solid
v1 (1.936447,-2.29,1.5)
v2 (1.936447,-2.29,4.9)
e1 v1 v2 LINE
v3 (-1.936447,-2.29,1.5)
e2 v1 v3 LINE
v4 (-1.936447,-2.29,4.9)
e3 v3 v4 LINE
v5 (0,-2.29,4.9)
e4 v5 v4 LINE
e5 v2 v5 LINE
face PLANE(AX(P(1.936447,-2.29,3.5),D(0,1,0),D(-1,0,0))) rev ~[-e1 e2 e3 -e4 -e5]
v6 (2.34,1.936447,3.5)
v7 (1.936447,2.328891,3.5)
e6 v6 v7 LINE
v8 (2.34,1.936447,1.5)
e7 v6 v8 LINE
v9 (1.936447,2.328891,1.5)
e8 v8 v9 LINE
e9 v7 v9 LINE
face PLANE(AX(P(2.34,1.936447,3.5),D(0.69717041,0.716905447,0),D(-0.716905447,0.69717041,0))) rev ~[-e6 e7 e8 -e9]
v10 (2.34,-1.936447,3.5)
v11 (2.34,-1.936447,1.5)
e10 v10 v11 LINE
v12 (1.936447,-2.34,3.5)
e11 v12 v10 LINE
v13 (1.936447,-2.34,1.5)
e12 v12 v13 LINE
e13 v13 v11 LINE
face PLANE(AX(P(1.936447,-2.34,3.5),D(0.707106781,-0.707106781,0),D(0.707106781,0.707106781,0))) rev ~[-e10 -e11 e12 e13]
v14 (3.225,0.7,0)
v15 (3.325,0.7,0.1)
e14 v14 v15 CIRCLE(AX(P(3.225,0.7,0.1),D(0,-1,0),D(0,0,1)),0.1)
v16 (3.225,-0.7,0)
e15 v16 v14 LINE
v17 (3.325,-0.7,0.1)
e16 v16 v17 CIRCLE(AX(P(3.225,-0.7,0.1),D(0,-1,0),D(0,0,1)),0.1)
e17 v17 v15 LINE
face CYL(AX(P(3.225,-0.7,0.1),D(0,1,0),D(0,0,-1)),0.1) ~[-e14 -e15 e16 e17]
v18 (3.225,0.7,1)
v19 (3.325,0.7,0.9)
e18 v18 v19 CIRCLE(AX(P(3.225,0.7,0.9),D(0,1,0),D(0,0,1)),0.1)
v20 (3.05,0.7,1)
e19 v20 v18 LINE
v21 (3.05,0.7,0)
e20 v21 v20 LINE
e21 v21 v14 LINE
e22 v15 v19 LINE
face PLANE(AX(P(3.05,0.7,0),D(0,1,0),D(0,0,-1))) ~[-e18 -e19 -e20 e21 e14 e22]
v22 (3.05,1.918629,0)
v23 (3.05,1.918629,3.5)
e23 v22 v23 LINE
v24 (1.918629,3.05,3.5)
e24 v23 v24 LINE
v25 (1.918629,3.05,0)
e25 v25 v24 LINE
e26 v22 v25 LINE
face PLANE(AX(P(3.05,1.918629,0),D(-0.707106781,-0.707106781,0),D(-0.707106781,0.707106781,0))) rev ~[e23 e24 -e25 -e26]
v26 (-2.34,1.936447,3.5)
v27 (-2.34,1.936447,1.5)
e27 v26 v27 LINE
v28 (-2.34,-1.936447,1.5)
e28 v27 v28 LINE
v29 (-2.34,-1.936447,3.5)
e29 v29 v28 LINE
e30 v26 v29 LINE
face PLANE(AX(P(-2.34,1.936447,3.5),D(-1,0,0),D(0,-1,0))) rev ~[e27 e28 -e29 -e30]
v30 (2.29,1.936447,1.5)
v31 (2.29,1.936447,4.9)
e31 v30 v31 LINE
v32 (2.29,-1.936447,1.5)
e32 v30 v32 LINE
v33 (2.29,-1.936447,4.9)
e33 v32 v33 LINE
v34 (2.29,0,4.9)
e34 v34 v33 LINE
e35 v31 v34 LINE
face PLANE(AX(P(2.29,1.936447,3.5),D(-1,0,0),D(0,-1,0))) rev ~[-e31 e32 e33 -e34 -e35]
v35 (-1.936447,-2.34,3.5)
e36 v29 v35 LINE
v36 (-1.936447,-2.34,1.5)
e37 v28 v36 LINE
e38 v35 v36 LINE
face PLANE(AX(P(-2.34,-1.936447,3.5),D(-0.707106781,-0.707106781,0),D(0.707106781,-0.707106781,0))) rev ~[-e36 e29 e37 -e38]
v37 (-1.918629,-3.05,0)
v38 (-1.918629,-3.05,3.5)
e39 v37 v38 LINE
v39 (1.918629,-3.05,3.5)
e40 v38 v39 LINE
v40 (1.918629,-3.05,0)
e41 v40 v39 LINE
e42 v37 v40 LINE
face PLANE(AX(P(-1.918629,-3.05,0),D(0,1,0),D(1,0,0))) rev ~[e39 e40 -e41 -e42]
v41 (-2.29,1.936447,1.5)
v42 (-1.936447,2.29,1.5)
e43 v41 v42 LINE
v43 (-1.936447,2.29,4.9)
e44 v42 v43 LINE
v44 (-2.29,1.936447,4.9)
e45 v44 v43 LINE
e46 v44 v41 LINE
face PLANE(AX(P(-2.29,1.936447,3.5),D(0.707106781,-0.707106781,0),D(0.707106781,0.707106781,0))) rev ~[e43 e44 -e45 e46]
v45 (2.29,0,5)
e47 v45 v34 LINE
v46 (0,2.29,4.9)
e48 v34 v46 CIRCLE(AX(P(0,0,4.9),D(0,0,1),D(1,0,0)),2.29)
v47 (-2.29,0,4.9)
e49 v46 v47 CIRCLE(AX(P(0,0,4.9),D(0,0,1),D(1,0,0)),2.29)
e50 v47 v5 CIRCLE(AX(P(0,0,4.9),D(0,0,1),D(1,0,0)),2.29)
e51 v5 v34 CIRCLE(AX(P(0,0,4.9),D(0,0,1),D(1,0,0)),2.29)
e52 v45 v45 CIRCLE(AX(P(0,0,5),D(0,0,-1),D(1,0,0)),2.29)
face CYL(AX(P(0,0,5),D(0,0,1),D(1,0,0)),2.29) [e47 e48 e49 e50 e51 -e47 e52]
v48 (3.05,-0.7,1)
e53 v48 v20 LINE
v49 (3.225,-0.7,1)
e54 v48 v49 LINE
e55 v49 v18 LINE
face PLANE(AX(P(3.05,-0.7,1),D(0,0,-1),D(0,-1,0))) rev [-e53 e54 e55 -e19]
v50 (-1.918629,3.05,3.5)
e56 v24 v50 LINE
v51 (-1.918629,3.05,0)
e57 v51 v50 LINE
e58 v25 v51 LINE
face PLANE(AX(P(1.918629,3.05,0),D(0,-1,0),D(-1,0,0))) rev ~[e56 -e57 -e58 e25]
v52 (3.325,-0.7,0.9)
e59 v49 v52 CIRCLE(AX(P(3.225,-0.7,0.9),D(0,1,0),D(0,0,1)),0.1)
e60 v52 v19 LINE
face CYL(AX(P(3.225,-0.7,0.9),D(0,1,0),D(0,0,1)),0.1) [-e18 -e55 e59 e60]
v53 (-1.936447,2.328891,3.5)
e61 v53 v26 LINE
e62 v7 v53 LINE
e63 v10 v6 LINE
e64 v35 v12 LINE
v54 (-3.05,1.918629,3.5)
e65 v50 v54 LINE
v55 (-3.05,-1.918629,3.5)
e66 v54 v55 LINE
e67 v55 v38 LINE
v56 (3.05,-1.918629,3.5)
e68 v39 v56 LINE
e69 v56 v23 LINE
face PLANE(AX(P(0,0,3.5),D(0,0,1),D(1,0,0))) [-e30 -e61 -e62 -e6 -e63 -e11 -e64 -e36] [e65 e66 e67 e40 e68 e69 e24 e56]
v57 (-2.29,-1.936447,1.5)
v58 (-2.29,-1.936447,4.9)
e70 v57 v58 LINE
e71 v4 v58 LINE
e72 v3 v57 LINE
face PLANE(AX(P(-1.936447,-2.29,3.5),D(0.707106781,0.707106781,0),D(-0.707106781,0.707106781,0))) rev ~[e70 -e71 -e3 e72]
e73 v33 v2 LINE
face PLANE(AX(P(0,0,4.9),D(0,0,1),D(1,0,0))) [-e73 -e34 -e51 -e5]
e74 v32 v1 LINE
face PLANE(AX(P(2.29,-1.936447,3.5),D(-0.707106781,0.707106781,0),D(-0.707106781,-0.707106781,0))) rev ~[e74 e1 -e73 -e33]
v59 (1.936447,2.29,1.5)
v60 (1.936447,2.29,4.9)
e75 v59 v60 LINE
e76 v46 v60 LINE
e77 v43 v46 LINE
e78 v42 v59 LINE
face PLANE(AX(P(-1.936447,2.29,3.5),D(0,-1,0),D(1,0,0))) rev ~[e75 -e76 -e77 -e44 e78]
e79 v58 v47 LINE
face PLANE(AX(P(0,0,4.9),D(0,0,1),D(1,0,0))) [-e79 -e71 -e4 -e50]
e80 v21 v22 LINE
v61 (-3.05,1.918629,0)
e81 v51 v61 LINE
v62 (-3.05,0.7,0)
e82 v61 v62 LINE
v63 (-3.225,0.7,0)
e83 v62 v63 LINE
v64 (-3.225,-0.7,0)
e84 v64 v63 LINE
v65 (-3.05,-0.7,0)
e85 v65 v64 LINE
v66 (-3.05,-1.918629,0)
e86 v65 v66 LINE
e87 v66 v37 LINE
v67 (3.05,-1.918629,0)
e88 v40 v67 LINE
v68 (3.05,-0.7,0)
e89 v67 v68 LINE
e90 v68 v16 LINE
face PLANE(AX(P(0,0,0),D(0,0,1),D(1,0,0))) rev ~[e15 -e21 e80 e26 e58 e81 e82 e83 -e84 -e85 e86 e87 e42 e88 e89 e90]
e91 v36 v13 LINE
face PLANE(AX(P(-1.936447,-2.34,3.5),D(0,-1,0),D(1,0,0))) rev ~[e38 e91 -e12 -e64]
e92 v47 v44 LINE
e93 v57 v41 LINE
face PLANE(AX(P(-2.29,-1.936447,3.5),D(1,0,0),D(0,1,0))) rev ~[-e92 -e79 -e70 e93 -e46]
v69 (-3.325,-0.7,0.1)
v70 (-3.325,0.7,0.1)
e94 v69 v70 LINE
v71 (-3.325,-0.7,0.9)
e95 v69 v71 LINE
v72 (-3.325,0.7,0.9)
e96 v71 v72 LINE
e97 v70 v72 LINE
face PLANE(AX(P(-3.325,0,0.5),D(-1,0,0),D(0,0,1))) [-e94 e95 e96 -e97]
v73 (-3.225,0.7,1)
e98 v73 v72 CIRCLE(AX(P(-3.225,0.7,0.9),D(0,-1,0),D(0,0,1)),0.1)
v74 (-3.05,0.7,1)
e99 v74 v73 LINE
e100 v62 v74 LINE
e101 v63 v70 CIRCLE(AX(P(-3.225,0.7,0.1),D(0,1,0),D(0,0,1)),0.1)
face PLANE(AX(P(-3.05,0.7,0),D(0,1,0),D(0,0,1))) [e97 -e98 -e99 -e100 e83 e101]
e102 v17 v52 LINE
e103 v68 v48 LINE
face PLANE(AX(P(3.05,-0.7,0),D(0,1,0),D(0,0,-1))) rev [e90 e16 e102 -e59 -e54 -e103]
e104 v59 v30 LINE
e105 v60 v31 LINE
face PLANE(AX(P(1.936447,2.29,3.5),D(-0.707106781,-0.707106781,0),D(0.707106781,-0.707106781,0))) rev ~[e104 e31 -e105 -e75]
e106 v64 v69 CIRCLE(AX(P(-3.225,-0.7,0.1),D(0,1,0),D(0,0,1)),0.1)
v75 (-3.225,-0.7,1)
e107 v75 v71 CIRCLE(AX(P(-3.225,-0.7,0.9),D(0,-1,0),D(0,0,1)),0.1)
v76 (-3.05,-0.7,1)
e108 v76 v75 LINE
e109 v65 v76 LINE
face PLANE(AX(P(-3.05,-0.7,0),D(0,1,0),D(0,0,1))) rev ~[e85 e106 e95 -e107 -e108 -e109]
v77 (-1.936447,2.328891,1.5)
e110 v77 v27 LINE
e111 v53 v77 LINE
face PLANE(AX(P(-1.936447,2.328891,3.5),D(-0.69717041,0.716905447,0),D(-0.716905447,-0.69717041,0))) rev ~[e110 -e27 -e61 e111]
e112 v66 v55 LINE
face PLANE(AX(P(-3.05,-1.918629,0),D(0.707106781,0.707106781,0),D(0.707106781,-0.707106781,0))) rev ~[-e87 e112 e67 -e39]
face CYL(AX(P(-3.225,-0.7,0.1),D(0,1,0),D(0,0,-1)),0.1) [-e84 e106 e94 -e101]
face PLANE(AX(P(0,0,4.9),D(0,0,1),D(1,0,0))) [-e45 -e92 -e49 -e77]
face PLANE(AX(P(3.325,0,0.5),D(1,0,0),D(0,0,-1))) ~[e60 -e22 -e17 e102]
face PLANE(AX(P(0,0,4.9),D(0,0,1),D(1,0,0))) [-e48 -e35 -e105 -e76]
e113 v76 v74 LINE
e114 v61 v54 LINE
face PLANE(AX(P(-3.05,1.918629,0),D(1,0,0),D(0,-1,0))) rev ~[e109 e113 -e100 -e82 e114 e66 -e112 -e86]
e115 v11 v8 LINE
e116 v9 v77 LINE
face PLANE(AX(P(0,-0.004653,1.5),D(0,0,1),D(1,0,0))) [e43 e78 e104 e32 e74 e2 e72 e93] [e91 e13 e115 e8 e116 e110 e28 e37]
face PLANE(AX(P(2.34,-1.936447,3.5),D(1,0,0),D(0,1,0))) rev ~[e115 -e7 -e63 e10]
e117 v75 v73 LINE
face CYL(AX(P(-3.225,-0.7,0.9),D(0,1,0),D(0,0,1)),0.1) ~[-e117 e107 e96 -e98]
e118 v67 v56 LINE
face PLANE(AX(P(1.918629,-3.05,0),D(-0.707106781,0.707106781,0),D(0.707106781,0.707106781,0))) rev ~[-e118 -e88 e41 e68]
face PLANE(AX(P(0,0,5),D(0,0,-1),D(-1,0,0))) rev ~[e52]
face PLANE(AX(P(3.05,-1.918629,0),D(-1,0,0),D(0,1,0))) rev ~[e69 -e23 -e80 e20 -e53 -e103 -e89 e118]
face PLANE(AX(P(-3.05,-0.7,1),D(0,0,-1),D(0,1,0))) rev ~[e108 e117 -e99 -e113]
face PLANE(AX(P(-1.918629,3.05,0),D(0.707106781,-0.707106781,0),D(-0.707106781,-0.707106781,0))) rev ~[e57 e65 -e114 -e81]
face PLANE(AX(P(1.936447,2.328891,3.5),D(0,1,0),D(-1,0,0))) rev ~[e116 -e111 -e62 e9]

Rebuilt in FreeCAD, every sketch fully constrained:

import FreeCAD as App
import Part
import Sketcher
from FreeCAD import Vector
Q = App.Units.Quantity


def edges_at(feature, points):
    """Names of the edges that pass closest to the given points."""
    edges = feature.Shape.Edges
    near = lambda p: min(range(len(edges)), key=lambda i: edges[i].distToShape(Part.Vertex(*p))[0])
    return sorted({f"Edge{near(p) + 1}" for p in points})


def add_polygon(sketch, points):
    """Adds a closed chain of lines whose ends are joined by coincident constraints."""
    first, n = sketch.GeometryCount, len(points)
    for a, b in zip(points, points[1:] + points[:1]):
        sketch.addGeometry(Part.LineSegment(App.Vector(*a, 0), App.Vector(*b, 0)), False)
    for i in range(n):
        sketch.addConstraint(Sketcher.Constraint("Coincident", first + i, 2, first + (i + 1) % n, 1))

doc = App.newDocument("Part")
body = doc.addObject("PartDesign::Body", "Body")

# Sketch on XY plane
sketch1 = body.newObject("Sketcher::SketchObject", "Sketch")
sketch1.AttachmentSupport = (doc.getObject("XY_Plane"), [""])
sketch1.MapMode = "FlatFace"
add_polygon(sketch1, [(-1.9, -3), (1.9, -3), (3, -1.9), (3, 1.9), (1.9, 3), (-1.9, 3), (-3, 1.9), (-3, -1.9)])  # lines 0-7
sketch1.addConstraint(Sketcher.Constraint("Horizontal", 0))
sketch1.addConstraint(Sketcher.Constraint("Vertical", 2))
sketch1.addConstraint(Sketcher.Constraint("Horizontal", 4))
sketch1.addConstraint(Sketcher.Constraint("Vertical", 6))
sketch1.addConstraint(Sketcher.Constraint("Symmetric", 0, 2, 4, 2, -1, 1))
sketch1.addConstraint(Sketcher.Constraint("Symmetric", 1, 2, 5, 2, -1, 1))
sketch1.addConstraint(Sketcher.Constraint("Perpendicular", 1, 3))
sketch1.addConstraint(Sketcher.Constraint("Perpendicular", 5, 7))
sketch1.addConstraint(Sketcher.Constraint("Horizontal", 2, 2, 5, 2))
sketch1.addConstraint(Sketcher.Constraint("Horizontal", 1, 2, 6, 2))
sketch1.addConstraint(Sketcher.Constraint("Vertical", 0, 2, 3, 2))
sketch1.addConstraint(Sketcher.Constraint("Equal", 4, 2))
sketch1.addConstraint(Sketcher.Constraint("Distance", 1, Q("1.6 mm")))
sketch1.addConstraint(Sketcher.Constraint("DistanceY", 0, 2, 3, 2, Q("6.1 mm")))
pad1 = body.newObject("PartDesign::Pad", "Pad")
pad1.Profile = sketch1
pad1.Length = 3.5

# Sketch on XY plane
sketch2 = body.newObject("Sketcher::SketchObject", "Sketch001")
sketch2.AttachmentSupport = (doc.getObject("XY_Plane"), [""])
sketch2.MapMode = "FlatFace"
sketch2.AttachmentOffset = App.Placement(Vector(0, 0, 3.5), App.Rotation())
add_polygon(sketch2, [(1.9, -2.3), (2.3, -1.9), (2.3, 1.9), (1.9, 2.3), (-1.9, 2.3), (-2.3, 1.9), (-2.3, -1.9), (-1.9, -2.3)])  # lines 0-7
sketch2.addConstraint(Sketcher.Constraint("Vertical", 1))
sketch2.addConstraint(Sketcher.Constraint("Horizontal", 3))
sketch2.addConstraint(Sketcher.Constraint("Vertical", 5))
sketch2.addConstraint(Sketcher.Constraint("Horizontal", 7))
sketch2.addConstraint(Sketcher.Constraint("Symmetric", 0, 2, 4, 2, -1, 1))
sketch2.addConstraint(Sketcher.Constraint("Symmetric", 2, 2, 6, 2, -1, 1))
sketch2.addConstraint(Sketcher.Constraint("Perpendicular", 0, 2))
sketch2.addConstraint(Sketcher.Constraint("Perpendicular", 2, 4))
sketch2.addConstraint(Sketcher.Constraint("Perpendicular", 4, 6))
sketch2.addConstraint(Sketcher.Constraint("Horizontal", 1, 2, 4, 2))
sketch2.addConstraint(Sketcher.Constraint("Vertical", 3, 2, 6, 2))
sketch2.addConstraint(Sketcher.Constraint("Equal", 7, 1))
sketch2.addConstraint(Sketcher.Constraint("Distance", 0, Q("0.5 mm")))
sketch2.addConstraint(Sketcher.Constraint("DistanceX", -1, 1, 0, 2, Q("2.29 mm")))
pad2 = body.newObject("PartDesign::Pad", "Pad001")
pad2.Profile = sketch2
pad2.Length = 1.5

# Sketch on XY plane
sketch3 = body.newObject("Sketcher::SketchObject", "Sketch002")
sketch3.AttachmentSupport = (doc.getObject("XY_Plane"), [""])
sketch3.MapMode = "FlatFace"
sketch3.AttachmentOffset = App.Placement(Vector(0, 0, 5), App.Rotation())
add_polygon(sketch3, [(-5, 5), (-5, -5), (5, -5), (5, 5)])  # lines 0-3
sketch3.addGeometry(Part.Circle(Vector(0, 0, 0), Vector(0, 0, 1), 2.3), False)  # 4
sketch3.addConstraint(Sketcher.Constraint("Vertical", 0))
sketch3.addConstraint(Sketcher.Constraint("Horizontal", 1))
sketch3.addConstraint(Sketcher.Constraint("Vertical", 2))
sketch3.addConstraint(Sketcher.Constraint("Horizontal", 3))
sketch3.addConstraint(Sketcher.Constraint("Coincident", 4, 3, -1, 1))
sketch3.addConstraint(Sketcher.Constraint("Symmetric", 0, 2, 2, 2, -1, 1))
sketch3.addConstraint(Sketcher.Constraint("Equal", 3, 0))
sketch3.addConstraint(Sketcher.Constraint("Diameter", 4, Q("4.58 mm")))
sketch3.addConstraint(Sketcher.Constraint("DistanceX", 1, 1, 1, 2, Q("10.094 mm")))
pocket1 = body.newObject("PartDesign::Pocket", "Pocket")
pocket1.Profile = sketch3
pocket1.Length = 0.1

# Sketch on YZ plane
sketch4 = body.newObject("Sketcher::SketchObject", "Sketch003")
sketch4.AttachmentSupport = (doc.getObject("YZ_Plane"), [""])
sketch4.MapMode = "FlatFace"
sketch4.AttachmentOffset = App.Placement(Vector(0, 0, -3.05), App.Rotation())
add_polygon(sketch4, [(0.7, 0), (-0.7, 0), (-0.7, 1), (0.7, 1)])  # lines 0-3
sketch4.addConstraint(Sketcher.Constraint("Horizontal", 0))
sketch4.addConstraint(Sketcher.Constraint("Vertical", 1))
sketch4.addConstraint(Sketcher.Constraint("Horizontal", 2))
sketch4.addConstraint(Sketcher.Constraint("Vertical", 3))
sketch4.addConstraint(Sketcher.Constraint("Symmetric", 0, 2, 3, 2, -1, 1))
sketch4.addConstraint(Sketcher.Constraint("DistanceY", 1, 1, 1, 2, Q("1 mm")))
sketch4.addConstraint(Sketcher.Constraint("DistanceX", 0, 2, 0, 1, Q("1.4 mm")))
pad3 = body.newObject("PartDesign::Pad", "Pad002")
pad3.Profile = sketch4
pad3.Length = 0.275
pad3.Reversed = True
doc.recompute()

fillet = body.newObject("PartDesign::Fillet", "Fillet")
fillet.Base = (pad3, edges_at(pad3, [(-3.325, 0, 1), (-3.325, 0, 0)]))
fillet.Radius = 0.1
doc.recompute()

mirrored = body.newObject("PartDesign::Mirrored", "Mirrored")
mirrored.Originals = [pocket1, pad3]
mirrored.MirrorPlane = (doc.getObject("YZ_Plane"), [""])
body.Tip = mirrored
doc.recompute()

fillet2 = body.newObject("PartDesign::Fillet", "Fillet001")
fillet2.Base = (mirrored, edges_at(mirrored, [(3.325, 0, 1), (3.325, 0, 0)]))
fillet2.Radius = 0.1

# Sketch on XY plane
sketch5 = body.newObject("Sketcher::SketchObject", "Sketch004")
sketch5.AttachmentSupport = (doc.getObject("XY_Plane"), [""])
sketch5.MapMode = "FlatFace"
sketch5.AttachmentOffset = App.Placement(Vector(0, 0, 3.5), App.Rotation())
add_polygon(sketch5, [(-2.3, 1.9), (-2.3, -1.9), (-1.9, -2.3), (1.9, -2.3), (2.3, -1.9), (2.3, 1.9), (1.9, 2.3), (-1.9, 2.3)])  # lines 0-7
add_polygon(sketch5, [(-2.3, -1.9), (-2.3, 1.9), (-1.9, 2.3), (1.9, 2.3), (2.3, 1.9), (2.3, -1.9), (1.9, -2.3), (-1.9, -2.3)])  # lines 8-15
sketch5.addConstraint(Sketcher.Constraint("Vertical", 0))
sketch5.addConstraint(Sketcher.Constraint("Horizontal", 2))
sketch5.addConstraint(Sketcher.Constraint("Vertical", 4))
sketch5.addConstraint(Sketcher.Constraint("Horizontal", 6))
sketch5.addConstraint(Sketcher.Constraint("Vertical", 8))
sketch5.addConstraint(Sketcher.Constraint("Horizontal", 10))
sketch5.addConstraint(Sketcher.Constraint("Vertical", 12))
sketch5.addConstraint(Sketcher.Constraint("Horizontal", 14))
sketch5.addConstraint(Sketcher.Constraint("Symmetric", 0, 2, 4, 2, -1, 1))
sketch5.addConstraint(Sketcher.Constraint("Symmetric", 8, 2, 12, 2, -1, 1))
sketch5.addConstraint(Sketcher.Constraint("Symmetric", 9, 2, 13, 2, -1, 1))
sketch5.addConstraint(Sketcher.Constraint("Perpendicular", 1, 3))
sketch5.addConstraint(Sketcher.Constraint("Parallel", 3, 9))
sketch5.addConstraint(Sketcher.Constraint("Perpendicular", 9, 11))
sketch5.addConstraint(Sketcher.Constraint("Perpendicular", 13, 15))
sketch5.addConstraint(Sketcher.Constraint("Horizontal", 0, 2, 3, 2))
sketch5.addConstraint(Sketcher.Constraint("Horizontal", 4, 2, 7, 2))
sketch5.addConstraint(Sketcher.Constraint("Horizontal", 7, 2, 8, 2))
sketch5.addConstraint(Sketcher.Constraint("Horizontal", 8, 2, 11, 2))
sketch5.addConstraint(Sketcher.Constraint("Horizontal", 12, 2, 15, 2))
sketch5.addConstraint(Sketcher.Constraint("Vertical", 2, 2, 5, 2))
sketch5.addConstraint(Sketcher.Constraint("Vertical", 1, 2, 6, 2))
sketch5.addConstraint(Sketcher.Constraint("Vertical", 6, 2, 9, 2))
sketch5.addConstraint(Sketcher.Constraint("Vertical", 5, 2, 10, 2))
sketch5.addConstraint(Sketcher.Constraint("Equal", 14, 0))
sketch5.addConstraint(Sketcher.Constraint("Distance", 9, Q("0.5 mm")))
sketch5.addConstraint(Sketcher.Constraint("DistanceX", 0, 2, -1, 1, Q("2.34 mm")))
sketch5.addConstraint(Sketcher.Constraint("DistanceX", 8, 2, -1, 1, Q("2.29 mm")))
sketch5.addConstraint(Sketcher.Constraint("Distance", 5, Q("0.56291 mm")))
pocket2 = body.newObject("PartDesign::Pocket", "Pocket001")
pocket2.Profile = sketch5
pocket2.Length = 2

doc.recompute()
